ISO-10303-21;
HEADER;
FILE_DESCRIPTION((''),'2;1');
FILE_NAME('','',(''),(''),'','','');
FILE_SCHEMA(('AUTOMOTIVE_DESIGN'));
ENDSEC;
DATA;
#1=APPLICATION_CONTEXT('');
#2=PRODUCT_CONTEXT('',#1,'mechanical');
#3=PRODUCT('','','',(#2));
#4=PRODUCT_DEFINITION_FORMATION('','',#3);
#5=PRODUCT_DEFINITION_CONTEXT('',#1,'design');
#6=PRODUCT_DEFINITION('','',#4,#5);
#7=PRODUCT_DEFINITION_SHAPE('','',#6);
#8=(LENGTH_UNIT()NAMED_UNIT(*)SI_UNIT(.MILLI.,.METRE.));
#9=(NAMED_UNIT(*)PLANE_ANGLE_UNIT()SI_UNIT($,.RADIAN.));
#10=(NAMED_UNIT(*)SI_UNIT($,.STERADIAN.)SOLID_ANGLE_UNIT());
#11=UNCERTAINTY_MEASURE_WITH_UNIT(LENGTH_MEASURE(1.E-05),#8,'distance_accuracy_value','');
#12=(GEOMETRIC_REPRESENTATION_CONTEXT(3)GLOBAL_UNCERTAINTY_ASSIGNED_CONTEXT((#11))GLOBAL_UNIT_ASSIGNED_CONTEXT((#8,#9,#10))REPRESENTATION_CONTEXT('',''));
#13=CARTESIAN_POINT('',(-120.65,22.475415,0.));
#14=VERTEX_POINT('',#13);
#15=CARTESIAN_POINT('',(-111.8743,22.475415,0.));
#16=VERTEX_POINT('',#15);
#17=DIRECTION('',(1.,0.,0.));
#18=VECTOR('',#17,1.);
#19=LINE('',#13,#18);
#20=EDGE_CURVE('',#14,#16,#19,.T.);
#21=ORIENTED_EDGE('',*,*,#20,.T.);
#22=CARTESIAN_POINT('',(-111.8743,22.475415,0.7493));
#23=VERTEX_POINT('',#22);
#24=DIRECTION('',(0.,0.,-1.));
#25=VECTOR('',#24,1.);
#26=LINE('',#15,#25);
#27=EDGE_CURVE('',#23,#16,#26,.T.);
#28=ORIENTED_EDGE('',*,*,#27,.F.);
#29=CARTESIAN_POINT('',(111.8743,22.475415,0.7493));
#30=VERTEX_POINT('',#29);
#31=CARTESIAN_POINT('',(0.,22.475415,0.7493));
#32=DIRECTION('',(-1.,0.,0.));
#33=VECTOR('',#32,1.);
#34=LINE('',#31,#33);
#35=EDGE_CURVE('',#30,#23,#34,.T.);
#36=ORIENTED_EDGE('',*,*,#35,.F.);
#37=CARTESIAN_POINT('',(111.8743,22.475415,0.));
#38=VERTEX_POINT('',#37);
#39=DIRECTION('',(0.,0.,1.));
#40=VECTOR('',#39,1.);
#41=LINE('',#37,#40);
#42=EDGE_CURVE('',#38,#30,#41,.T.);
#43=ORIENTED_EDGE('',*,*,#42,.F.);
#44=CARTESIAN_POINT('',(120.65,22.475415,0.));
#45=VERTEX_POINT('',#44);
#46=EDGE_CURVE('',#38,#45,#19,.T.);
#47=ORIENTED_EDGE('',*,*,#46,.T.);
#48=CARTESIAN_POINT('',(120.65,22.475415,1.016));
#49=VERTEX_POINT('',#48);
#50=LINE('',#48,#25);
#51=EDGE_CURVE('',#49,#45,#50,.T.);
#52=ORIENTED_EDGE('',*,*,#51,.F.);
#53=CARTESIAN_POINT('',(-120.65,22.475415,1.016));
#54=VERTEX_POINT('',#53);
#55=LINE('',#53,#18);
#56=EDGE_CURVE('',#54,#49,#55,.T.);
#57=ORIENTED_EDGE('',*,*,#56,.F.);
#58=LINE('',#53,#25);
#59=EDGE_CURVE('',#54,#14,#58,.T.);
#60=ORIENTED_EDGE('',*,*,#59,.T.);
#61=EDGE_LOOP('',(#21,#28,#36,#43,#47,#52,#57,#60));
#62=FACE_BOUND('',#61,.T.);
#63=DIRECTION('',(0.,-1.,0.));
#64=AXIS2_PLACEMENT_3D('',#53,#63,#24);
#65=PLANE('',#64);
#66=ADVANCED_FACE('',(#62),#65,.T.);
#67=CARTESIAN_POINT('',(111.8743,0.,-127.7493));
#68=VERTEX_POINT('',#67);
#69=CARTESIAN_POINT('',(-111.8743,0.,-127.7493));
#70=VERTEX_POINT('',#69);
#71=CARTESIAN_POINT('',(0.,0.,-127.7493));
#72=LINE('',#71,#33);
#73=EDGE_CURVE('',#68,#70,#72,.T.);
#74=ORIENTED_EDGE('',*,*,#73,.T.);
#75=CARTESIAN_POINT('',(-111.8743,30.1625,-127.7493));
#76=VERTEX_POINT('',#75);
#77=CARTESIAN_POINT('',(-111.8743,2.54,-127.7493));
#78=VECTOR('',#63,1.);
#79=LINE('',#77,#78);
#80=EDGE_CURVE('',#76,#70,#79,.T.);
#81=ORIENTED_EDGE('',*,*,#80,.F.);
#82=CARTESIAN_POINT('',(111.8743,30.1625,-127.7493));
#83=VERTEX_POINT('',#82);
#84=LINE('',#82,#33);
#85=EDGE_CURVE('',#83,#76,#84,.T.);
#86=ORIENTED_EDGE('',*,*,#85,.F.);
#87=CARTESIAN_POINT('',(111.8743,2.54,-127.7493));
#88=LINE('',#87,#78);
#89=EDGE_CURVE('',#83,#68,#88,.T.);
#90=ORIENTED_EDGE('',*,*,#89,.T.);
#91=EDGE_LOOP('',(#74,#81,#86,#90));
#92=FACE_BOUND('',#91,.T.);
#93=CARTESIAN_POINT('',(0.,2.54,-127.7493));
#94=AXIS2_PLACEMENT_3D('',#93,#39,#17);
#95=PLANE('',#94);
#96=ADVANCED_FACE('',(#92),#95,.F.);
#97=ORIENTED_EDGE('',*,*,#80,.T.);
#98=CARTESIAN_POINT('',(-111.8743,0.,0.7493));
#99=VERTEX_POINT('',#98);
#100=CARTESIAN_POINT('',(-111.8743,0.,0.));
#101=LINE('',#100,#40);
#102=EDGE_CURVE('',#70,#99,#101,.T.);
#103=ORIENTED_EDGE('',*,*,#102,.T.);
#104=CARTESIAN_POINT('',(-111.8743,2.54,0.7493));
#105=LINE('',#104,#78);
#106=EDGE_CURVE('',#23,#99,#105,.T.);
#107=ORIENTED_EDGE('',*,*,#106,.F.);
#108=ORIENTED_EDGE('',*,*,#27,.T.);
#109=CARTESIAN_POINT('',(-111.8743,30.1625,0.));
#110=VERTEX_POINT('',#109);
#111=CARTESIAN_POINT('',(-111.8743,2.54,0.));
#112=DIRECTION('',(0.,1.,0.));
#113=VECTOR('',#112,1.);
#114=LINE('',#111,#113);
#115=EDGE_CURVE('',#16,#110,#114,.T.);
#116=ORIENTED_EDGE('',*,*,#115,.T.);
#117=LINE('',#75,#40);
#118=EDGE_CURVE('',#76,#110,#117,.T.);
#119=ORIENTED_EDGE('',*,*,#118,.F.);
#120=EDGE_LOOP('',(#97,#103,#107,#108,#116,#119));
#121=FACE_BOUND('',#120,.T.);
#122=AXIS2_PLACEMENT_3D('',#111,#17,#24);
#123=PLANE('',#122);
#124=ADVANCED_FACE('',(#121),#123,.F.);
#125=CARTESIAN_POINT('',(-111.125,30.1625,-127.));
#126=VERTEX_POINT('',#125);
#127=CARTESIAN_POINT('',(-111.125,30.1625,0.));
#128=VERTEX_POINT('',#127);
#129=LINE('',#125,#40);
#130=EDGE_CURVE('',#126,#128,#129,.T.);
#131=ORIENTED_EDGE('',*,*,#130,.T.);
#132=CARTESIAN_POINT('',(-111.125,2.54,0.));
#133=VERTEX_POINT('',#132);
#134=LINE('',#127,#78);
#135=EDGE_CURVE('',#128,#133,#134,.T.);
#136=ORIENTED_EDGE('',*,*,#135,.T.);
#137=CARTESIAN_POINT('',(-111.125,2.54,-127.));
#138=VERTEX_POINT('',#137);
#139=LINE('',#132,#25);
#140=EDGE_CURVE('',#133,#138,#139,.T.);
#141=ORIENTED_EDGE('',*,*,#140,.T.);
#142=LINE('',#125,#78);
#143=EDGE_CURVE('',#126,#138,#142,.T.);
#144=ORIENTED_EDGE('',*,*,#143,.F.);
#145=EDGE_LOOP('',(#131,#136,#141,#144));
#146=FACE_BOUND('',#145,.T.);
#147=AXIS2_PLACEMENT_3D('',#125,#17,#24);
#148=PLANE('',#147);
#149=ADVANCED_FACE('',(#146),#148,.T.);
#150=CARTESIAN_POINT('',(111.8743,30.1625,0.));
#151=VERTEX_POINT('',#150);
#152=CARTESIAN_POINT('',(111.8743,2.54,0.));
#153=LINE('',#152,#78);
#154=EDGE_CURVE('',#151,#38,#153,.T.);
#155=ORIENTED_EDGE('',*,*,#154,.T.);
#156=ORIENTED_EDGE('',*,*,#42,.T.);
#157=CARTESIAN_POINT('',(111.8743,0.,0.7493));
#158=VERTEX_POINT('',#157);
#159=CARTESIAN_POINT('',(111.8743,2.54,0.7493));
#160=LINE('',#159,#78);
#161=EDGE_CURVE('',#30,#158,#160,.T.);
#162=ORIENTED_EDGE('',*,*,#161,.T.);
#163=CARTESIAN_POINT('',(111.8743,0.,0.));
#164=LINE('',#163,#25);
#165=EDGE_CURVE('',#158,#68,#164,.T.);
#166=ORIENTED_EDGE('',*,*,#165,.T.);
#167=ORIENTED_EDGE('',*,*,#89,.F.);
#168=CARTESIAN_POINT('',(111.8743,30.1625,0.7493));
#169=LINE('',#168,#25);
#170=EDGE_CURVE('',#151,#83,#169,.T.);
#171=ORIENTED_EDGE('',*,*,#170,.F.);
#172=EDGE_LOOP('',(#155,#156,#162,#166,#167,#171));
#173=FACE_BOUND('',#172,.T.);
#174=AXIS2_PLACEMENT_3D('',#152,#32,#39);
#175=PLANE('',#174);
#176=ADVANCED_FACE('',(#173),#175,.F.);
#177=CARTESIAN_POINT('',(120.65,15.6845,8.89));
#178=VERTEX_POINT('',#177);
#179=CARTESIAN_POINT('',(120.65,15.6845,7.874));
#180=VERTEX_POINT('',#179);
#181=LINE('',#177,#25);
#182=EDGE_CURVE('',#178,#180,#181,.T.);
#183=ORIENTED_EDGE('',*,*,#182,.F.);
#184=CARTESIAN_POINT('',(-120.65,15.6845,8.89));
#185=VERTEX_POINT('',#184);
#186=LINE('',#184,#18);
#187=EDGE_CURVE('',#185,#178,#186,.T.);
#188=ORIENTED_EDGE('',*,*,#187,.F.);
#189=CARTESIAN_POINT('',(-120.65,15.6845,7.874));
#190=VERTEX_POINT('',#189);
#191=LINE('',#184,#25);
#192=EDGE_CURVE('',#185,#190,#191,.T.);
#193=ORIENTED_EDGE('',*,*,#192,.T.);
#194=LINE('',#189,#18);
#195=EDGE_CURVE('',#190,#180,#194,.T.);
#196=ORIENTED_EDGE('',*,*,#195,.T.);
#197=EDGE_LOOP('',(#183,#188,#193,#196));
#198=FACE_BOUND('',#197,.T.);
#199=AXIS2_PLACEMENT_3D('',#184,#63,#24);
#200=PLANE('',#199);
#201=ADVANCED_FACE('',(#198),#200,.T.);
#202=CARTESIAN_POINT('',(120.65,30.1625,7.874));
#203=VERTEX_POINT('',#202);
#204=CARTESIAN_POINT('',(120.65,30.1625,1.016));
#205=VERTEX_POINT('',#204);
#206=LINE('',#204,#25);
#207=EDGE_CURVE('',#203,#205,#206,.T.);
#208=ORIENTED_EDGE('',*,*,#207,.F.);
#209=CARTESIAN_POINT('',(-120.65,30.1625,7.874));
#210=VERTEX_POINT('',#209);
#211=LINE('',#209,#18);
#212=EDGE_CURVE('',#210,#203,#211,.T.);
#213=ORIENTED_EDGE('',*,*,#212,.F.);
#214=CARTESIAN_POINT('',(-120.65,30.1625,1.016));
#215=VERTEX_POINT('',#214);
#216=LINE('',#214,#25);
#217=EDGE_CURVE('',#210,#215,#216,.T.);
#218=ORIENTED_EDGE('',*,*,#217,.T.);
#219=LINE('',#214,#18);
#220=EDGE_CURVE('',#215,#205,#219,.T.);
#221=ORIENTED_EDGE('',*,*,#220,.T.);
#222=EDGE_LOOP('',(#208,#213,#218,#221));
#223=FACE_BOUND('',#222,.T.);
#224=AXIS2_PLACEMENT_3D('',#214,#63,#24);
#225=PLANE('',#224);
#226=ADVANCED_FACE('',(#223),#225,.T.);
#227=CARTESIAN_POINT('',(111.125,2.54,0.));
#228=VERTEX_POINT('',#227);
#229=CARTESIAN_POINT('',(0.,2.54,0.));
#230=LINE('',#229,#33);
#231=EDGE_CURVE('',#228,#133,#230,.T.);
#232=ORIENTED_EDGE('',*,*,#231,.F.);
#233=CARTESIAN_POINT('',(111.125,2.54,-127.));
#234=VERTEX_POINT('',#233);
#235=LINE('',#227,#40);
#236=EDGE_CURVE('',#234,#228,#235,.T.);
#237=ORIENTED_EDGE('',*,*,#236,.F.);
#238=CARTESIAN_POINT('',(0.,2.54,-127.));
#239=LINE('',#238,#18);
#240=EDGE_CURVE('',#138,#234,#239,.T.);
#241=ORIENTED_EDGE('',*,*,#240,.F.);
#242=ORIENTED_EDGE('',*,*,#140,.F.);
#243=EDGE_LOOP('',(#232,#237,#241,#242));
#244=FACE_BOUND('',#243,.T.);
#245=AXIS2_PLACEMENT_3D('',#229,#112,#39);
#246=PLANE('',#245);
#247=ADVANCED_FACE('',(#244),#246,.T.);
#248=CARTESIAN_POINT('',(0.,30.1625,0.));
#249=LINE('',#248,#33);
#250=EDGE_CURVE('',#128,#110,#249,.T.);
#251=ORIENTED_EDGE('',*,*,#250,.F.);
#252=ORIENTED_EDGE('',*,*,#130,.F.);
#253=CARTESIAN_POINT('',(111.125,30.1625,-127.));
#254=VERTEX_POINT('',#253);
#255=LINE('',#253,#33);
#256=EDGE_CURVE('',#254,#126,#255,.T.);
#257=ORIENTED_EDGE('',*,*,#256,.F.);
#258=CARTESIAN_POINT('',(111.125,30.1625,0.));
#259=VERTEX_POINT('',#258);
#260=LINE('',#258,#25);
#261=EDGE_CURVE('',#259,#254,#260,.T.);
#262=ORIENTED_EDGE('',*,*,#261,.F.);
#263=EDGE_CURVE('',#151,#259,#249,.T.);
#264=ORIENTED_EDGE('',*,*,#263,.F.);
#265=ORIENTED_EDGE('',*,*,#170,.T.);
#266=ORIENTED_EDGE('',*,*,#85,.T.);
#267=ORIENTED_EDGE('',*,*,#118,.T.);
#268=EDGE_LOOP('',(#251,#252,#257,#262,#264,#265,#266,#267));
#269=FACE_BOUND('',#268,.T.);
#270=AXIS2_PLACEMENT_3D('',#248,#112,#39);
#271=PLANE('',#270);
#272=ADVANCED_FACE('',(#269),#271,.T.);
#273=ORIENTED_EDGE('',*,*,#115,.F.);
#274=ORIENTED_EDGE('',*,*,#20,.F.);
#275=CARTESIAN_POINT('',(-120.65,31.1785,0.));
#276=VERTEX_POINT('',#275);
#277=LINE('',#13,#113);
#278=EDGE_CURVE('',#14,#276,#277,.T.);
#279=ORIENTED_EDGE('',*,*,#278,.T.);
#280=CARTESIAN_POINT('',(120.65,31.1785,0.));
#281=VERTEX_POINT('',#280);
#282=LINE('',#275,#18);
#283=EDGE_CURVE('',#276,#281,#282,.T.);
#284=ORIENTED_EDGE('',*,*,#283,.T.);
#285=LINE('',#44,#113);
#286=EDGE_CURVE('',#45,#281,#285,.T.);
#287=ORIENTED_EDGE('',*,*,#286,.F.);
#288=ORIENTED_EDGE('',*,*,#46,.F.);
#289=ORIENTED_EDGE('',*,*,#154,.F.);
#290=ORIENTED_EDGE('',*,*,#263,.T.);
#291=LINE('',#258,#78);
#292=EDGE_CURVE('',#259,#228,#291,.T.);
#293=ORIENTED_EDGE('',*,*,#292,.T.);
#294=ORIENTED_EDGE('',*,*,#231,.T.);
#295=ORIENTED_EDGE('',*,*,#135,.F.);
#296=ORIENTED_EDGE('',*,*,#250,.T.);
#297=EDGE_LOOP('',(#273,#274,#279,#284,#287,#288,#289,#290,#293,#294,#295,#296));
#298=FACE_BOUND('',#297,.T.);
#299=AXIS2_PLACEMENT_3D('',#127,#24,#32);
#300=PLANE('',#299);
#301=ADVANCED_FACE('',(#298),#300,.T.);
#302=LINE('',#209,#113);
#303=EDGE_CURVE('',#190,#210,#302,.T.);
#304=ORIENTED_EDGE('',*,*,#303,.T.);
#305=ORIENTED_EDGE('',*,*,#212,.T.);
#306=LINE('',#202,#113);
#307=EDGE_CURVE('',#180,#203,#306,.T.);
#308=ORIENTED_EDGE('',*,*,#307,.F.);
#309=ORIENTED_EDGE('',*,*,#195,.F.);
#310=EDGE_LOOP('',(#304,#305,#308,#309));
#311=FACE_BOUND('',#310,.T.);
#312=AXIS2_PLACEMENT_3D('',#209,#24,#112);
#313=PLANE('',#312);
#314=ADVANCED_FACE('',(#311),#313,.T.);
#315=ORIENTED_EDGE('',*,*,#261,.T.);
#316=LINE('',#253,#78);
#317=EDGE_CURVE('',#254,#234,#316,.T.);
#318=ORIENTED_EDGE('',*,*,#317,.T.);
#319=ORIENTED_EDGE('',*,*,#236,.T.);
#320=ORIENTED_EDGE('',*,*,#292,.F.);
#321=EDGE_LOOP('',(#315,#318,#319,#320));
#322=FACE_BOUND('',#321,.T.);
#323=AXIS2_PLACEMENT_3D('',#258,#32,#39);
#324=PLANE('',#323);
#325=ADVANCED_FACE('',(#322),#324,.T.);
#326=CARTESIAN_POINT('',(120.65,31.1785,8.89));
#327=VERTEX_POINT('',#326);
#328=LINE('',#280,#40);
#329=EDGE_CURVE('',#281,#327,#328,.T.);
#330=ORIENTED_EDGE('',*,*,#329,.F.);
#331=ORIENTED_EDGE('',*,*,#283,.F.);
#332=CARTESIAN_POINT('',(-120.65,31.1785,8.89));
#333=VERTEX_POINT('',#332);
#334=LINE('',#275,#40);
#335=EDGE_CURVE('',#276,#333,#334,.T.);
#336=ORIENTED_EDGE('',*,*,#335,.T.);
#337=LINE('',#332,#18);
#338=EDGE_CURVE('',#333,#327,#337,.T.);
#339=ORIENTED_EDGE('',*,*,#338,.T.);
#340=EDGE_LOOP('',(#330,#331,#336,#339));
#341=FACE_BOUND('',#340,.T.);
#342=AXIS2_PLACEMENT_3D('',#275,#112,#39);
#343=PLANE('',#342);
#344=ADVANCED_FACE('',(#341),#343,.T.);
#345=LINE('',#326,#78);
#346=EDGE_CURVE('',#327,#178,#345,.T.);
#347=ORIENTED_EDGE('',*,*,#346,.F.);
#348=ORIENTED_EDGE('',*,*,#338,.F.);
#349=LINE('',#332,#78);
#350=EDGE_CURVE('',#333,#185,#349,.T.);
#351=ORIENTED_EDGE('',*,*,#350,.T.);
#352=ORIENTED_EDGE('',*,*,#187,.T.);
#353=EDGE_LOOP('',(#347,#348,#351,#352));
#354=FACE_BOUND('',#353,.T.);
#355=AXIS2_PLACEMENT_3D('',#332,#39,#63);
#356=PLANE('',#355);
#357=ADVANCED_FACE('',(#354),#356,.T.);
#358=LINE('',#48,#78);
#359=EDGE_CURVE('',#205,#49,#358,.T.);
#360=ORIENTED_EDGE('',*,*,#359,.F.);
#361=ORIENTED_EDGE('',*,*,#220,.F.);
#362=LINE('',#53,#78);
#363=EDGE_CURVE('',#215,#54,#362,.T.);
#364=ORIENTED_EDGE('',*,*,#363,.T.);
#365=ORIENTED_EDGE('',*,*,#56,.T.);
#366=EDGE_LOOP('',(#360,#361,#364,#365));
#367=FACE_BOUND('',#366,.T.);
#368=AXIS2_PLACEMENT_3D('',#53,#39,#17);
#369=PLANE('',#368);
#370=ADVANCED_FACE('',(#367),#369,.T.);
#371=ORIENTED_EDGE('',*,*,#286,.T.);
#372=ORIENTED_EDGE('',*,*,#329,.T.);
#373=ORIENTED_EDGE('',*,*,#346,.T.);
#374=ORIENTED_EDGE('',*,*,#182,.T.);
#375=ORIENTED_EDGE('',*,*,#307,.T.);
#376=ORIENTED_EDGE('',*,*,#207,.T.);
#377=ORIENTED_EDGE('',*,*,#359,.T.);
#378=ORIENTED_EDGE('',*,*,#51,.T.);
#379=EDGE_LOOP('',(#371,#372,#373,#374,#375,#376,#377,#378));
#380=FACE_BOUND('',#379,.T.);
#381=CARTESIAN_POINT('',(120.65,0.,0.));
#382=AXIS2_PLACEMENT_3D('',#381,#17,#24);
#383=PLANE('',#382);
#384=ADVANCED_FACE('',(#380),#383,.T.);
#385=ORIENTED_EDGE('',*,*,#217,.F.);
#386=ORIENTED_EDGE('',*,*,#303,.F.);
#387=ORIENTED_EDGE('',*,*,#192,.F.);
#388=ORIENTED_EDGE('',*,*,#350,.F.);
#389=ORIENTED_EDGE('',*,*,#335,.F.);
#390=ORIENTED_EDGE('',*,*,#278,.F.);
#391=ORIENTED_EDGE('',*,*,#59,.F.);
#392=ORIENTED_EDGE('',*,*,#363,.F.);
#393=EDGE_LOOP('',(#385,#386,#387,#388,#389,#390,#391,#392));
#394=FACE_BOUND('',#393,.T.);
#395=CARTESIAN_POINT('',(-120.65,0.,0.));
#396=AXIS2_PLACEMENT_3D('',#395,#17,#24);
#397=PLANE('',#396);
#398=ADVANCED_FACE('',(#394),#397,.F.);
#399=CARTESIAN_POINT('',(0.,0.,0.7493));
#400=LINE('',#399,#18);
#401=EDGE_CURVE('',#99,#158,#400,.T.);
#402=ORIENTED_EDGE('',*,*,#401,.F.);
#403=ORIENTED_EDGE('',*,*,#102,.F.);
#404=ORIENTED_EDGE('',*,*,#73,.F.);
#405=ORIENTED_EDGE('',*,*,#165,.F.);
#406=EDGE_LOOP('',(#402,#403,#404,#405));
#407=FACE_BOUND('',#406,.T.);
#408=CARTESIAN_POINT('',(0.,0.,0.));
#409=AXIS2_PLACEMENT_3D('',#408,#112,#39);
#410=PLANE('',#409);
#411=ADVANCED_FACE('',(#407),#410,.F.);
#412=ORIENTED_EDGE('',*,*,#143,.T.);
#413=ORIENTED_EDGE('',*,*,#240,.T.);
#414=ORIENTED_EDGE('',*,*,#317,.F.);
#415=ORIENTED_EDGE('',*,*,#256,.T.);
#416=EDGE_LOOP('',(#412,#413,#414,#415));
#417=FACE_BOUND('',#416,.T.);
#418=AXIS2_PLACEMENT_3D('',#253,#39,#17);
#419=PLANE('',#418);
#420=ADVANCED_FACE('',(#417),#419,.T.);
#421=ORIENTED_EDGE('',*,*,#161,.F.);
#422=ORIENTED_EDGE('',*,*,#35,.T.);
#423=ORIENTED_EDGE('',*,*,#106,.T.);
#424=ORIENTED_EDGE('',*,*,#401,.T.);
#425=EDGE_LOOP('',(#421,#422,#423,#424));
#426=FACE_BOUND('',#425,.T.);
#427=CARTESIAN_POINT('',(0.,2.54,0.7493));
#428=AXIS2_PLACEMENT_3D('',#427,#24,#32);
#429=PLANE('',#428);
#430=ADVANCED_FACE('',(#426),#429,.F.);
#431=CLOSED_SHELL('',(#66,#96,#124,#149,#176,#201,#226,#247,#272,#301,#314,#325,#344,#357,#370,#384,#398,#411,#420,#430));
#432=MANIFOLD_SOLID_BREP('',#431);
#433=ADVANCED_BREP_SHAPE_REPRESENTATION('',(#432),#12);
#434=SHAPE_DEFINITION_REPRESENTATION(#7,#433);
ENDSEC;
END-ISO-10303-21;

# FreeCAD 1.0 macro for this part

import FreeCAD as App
import Part
import Sketcher

V = App.Vector
Q = App.Units.Quantity

doc = App.newDocument("Part")
params = doc.addObject("Spreadsheet::Sheet", "Params")
for row, (alias, value) in enumerate([
    ("sketch1_width", "8.809 in"),
    ("sketch1_height", "5.059 in"),
    ("pad1_length", "0.1 in"),
    ("sketch2_height", "5 in"),
    ("sketch2_width", "8.75 in"),
    ("sketch2_width2", "8.809 in"),
    ("sketch2_height2", "5.059 in"),
    ("pad2_length", "1.1875 in"),
    ("sketch3_width", "0.61 in"),
    ("sketch3_width2", "0.57 in"),
    ("sketch3_height", "0.35 in"),
    ("sketch3_height2", "0.04 in"),
    ("pad3_length", "4.75 in"),
    ("pad3_length2", "4.75 in"),
], start=1):
    params.set(f"A{row}", alias)
    params.set(f"B{row}", "=" + value)
    params.setAlias(f"B{row}", alias)

body = doc.addObject("PartDesign::Body", "Body")

sketch1 = body.newObject("Sketcher::SketchObject", "Sketch")
sketch1.AttachmentSupport = (doc.getObject("XZ_Plane"), [""])
sketch1.MapMode = "FlatFace"
sketch1.addGeometry([
    Part.LineSegment(V(-112, -128, 0), V(-112, 1, 0)),
    Part.LineSegment(V(-112, 1, 0), V(112, 1, 0)),
    Part.LineSegment(V(112, 1, 0), V(112, -128, 0)),
    Part.LineSegment(V(112, -128, 0), V(-112, -128, 0)),
], False)
sketch1.addConstraint([
    Sketcher.Constraint("Coincident", 0, 2, 1, 1),
    Sketcher.Constraint("Coincident", 1, 2, 2, 1),
    Sketcher.Constraint("Coincident", 2, 2, 3, 1),
    Sketcher.Constraint("Coincident", 3, 2, 0, 1),
    Sketcher.Constraint("Vertical", 0),
    Sketcher.Constraint("Horizontal", 1),
    Sketcher.Constraint("Vertical", 2),
    Sketcher.Constraint("Horizontal", 3),
    Sketcher.Constraint("DistanceX", 1, 1, 1, 2, Q("8.809 in")),
    Sketcher.Constraint("DistanceY", 0, 1, 0, 2, Q("5.059 in")),
    Sketcher.Constraint("DistanceX", 0, 2, -1, 1, Q("4.4045 in")),
    Sketcher.Constraint("DistanceY", -1, 1, 0, 2, Q("0.0295 in")),
])
sketch1.setExpression("Constraints[8]", "Params.sketch1_width")
sketch1.setExpression("Constraints[9]", "Params.sketch1_height")
pad1 = body.newObject("PartDesign::Pad", "Pad")
pad1.Profile = sketch1
pad1.setExpression("Length", "Params.pad1_length")
pad1.Reversed = True

sketch2 = body.newObject("Sketcher::SketchObject", "Sketch001")
sketch2.AttachmentSupport = (doc.getObject("XZ_Plane"), [""])
sketch2.MapMode = "FlatFace"
sketch2.addGeometry([
    Part.LineSegment(V(-112, -128, 0), V(-112, 1, 0)),
    Part.LineSegment(V(-112, 1, 0), V(112, 1, 0)),
    Part.LineSegment(V(112, 1, 0), V(112, -128, 0)),
    Part.LineSegment(V(112, -128, 0), V(-112, -128, 0)),
    Part.LineSegment(V(111, 0, 0), V(-111, 0, 0)),
    Part.LineSegment(V(-111, 0, 0), V(-111, -127, 0)),
    Part.LineSegment(V(-111, -127, 0), V(111, -127, 0)),
    Part.LineSegment(V(111, -127, 0), V(111, 0, 0)),
], False)
sketch2.addConstraint([
    Sketcher.Constraint("Coincident", 0, 2, 1, 1),
    Sketcher.Constraint("Coincident", 1, 2, 2, 1),
    Sketcher.Constraint("Coincident", 2, 2, 3, 1),
    Sketcher.Constraint("Coincident", 3, 2, 0, 1),
    Sketcher.Constraint("Coincident", 4, 2, 5, 1),
    Sketcher.Constraint("Coincident", 5, 2, 6, 1),
    Sketcher.Constraint("Coincident", 6, 2, 7, 1),
    Sketcher.Constraint("Coincident", 7, 2, 4, 1),
    Sketcher.Constraint("Vertical", 0),
    Sketcher.Constraint("Horizontal", 1),
    Sketcher.Constraint("Vertical", 2),
    Sketcher.Constraint("Horizontal", 3),
    Sketcher.Constraint("Horizontal", 4),
    Sketcher.Constraint("Vertical", 5),
    Sketcher.Constraint("Horizontal", 6),
    Sketcher.Constraint("Vertical", 7),
    Sketcher.Constraint("Symmetric", 4, 2, 7, 2, -1, 1),
    Sketcher.Constraint("DistanceY", 5, 2, 5, 1, Q("5 in")),
    Sketcher.Constraint("DistanceX", 4, 2, 4, 1, Q("8.75 in")),
    Sketcher.Constraint("DistanceX", 1, 1, 1, 2, Q("8.809 in")),
    Sketcher.Constraint("DistanceY", 0, 1, 0, 2, Q("5.059 in")),
    Sketcher.Constraint("DistanceX", 0, 2, -1, 1, Q("4.4045 in")),
    Sketcher.Constraint("DistanceY", -1, 1, 0, 2, Q("0.0295 in")),
])
sketch2.setExpression("Constraints[17]", "Params.sketch2_height")
sketch2.setExpression("Constraints[18]", "Params.sketch2_width")
sketch2.setExpression("Constraints[19]", "Params.sketch2_width2")
sketch2.setExpression("Constraints[20]", "Params.sketch2_height2")
pad2 = body.newObject("PartDesign::Pad", "Pad001")
pad2.Profile = sketch2
pad2.setExpression("Length", "Params.pad2_length")
pad2.Reversed = True

sketch3 = body.newObject("Sketcher::SketchObject", "Sketch002")
sketch3.AttachmentSupport = (doc.getObject("YZ_Plane"), [""])
sketch3.MapMode = "FlatFace"
sketch3.addGeometry([
    Part.LineSegment(V(22.5, 0, 0), V(31.2, 0, 0)),
    Part.LineSegment(V(31.2, 0, 0), V(31.2, 8.9, 0)),
    Part.LineSegment(V(31.2, 8.9, 0), V(15.7, 8.9, 0)),
    Part.LineSegment(V(15.7, 8.9, 0), V(15.7, 7.9, 0)),
    Part.LineSegment(V(15.7, 7.9, 0), V(30.2, 7.9, 0)),
    Part.LineSegment(V(30.2, 7.9, 0), V(30.2, 1, 0)),
    Part.LineSegment(V(30.2, 1, 0), V(22.5, 1, 0)),
    Part.LineSegment(V(22.5, 1, 0), V(22.5, 0, 0)),
], False)
sketch3.addConstraint([
    Sketcher.Constraint("Coincident", 0, 2, 1, 1),
    Sketcher.Constraint("Coincident", 1, 2, 2, 1),
    Sketcher.Constraint("Coincident", 2, 2, 3, 1),
    Sketcher.Constraint("Coincident", 3, 2, 4, 1),
    Sketcher.Constraint("Coincident", 4, 2, 5, 1),
    Sketcher.Constraint("Coincident", 5, 2, 6, 1),
    Sketcher.Constraint("Coincident", 6, 2, 7, 1),
    Sketcher.Constraint("Coincident", 7, 2, 0, 1),
    Sketcher.Constraint("Horizontal", 0),
    Sketcher.Constraint("Vertical", 1),
    Sketcher.Constraint("Horizontal", 2),
    Sketcher.Constraint("Vertical", 3),
    Sketcher.Constraint("Horizontal", 4),
    Sketcher.Constraint("Vertical", 5),
    Sketcher.Constraint("Horizontal", 6),
    Sketcher.Constraint("Vertical", 7),
    Sketcher.Constraint("PointOnObject", 0, 2, -1),
    Sketcher.Constraint("Equal", 3, 7),
    Sketcher.Constraint("DistanceX", 2, 2, 2, 1, Q("0.61 in")),
    Sketcher.Constraint("DistanceX", 4, 1, 4, 2, Q("0.57 in")),
    Sketcher.Constraint("DistanceY", 1, 1, 1, 2, Q("0.35 in")),
    Sketcher.Constraint("DistanceY", 3, 2, 3, 1, Q("0.04 in")),
    Sketcher.Constraint("DistanceX", -1, 1, 4, 2, Q("1.1875 in")),
    Sketcher.Constraint("DistanceX", 0, 1, 0, 2, 8.703085),
])
sketch3.setExpression("Constraints[18]", "Params.sketch3_width")
sketch3.setExpression("Constraints[19]", "Params.sketch3_width2")
sketch3.setExpression("Constraints[20]", "Params.sketch3_height")
sketch3.setExpression("Constraints[21]", "Params.sketch3_height2")
pad3 = body.newObject("PartDesign::Pad", "Pad002")
pad3.Profile = sketch3
pad3.Type = "TwoLengths"
pad3.setExpression("Length", "Params.pad3_length")
pad3.setExpression("Length2", "Params.pad3_length2")

doc.recompute()
